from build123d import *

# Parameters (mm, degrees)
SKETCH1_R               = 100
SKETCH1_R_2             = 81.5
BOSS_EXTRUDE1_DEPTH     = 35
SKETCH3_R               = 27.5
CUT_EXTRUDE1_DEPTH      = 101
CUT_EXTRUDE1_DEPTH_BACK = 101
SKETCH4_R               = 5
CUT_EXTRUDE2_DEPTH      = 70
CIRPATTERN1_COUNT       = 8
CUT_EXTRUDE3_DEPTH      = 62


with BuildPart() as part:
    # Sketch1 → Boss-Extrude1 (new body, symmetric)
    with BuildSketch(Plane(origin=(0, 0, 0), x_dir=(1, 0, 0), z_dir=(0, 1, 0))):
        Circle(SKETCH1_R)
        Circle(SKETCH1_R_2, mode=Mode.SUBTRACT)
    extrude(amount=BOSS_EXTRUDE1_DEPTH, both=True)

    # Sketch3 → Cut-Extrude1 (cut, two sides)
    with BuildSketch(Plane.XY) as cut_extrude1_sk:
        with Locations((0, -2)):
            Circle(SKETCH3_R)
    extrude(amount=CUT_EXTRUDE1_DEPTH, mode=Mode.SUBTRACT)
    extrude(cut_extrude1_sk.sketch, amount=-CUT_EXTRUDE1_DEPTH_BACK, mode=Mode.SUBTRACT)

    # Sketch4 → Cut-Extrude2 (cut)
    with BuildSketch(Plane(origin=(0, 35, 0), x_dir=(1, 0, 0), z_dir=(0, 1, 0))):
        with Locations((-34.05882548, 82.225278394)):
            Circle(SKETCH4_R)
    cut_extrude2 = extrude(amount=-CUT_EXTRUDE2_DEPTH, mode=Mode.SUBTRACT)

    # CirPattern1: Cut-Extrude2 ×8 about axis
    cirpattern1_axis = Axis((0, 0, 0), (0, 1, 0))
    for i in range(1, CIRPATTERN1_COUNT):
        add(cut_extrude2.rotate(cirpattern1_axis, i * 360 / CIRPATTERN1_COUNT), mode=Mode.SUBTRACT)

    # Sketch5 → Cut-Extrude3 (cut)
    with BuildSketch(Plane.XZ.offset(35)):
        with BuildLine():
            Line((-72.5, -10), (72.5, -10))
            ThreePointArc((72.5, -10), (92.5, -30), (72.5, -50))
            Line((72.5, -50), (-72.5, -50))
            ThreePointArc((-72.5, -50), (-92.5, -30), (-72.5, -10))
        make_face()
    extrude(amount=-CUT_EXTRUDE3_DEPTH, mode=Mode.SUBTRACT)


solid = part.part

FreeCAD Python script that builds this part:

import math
import FreeCAD as App
import Part
import Sketcher

V = App.Vector
Q = App.Units.Quantity

doc = App.newDocument("Part")
body = doc.addObject("PartDesign::Body", "Body")

sketch1 = body.newObject("Sketcher::SketchObject", "Sketch")
sketch1.AttachmentSupport = (doc.getObject("XZ_Plane"), [""])
sketch1.MapMode = "FlatFace"
sketch1.addGeometry([
    Part.Circle(V(0, 0, 0), V(0, 0, 1), 100),
    Part.Circle(V(0, 0, 0), V(0, 0, 1), 82),
], False)
sketch1.addConstraint([
    Sketcher.Constraint("Coincident", 0, 3, -1, 1),
    Sketcher.Constraint("Coincident", 1, 3, -1, 1),
    Sketcher.Constraint("Diameter", 0, Q("200 mm")),
    Sketcher.Constraint("Diameter", 1, Q("163 mm")),
])
pad1 = body.newObject("PartDesign::Pad", "Pad")
pad1.Profile = sketch1
pad1.Length = 70
pad1.Midplane = True

sketch2 = body.newObject("Sketcher::SketchObject", "Sketch001")
sketch2.AttachmentSupport = (doc.getObject("XY_Plane"), [""])
sketch2.MapMode = "FlatFace"
sketch2.addGeometry(Part.Circle(V(0, -2, 0), V(0, 0, 1), 28), False)
sketch2.addConstraint([
    Sketcher.Constraint("PointOnObject", 0, 3, -2),
    Sketcher.Constraint("Diameter", 0, Q("55 mm")),
    Sketcher.Constraint("DistanceY", 0, 3, -1, 1, Q("2 mm")),
])
pocket1 = body.newObject("PartDesign::Pocket", "Pocket")
pocket1.Profile = sketch2
pocket1.Type = "ThroughAll"
pocket1.Midplane = True

sketch3 = body.newObject("Sketcher::SketchObject", "Sketch002")
sketch3.AttachmentSupport = (doc.getObject("XZ_Plane"), [""])
sketch3.MapMode = "FlatFace"
sketch3.AttachmentOffset = App.Placement(V(0, 0, -35), App.Rotation())
sketch3.addGeometry(Part.Circle(V(-34, -82, 0), V(0, 0, 1), 5), False)
sketch3.addConstraint([
    Sketcher.Constraint("Diameter", 0, Q("10 mm")),
    Sketcher.Constraint("DistanceY", 0, 3, -1, 1, Q("82.225278 mm")),
    Sketcher.Constraint("DistanceX", 0, 3, -1, 1, Q("34.058825 mm")),
])
pocket2 = body.newObject("PartDesign::Pocket", "Pocket001")
pocket2.Profile = sketch3
pocket2.Length = 70
pocket2.Reversed = True
doc.recompute()

polarpattern = body.newObject("PartDesign::PolarPattern", "PolarPattern")
polarpattern.Originals = [pocket2]
polarpattern.Axis = (doc.getObject("Y_Axis"), [""])
polarpattern.Angle = 360
polarpattern.Occurrences = 8
body.Tip = polarpattern

sketch4 = body.newObject("Sketcher::SketchObject", "Sketch003")
sketch4.AttachmentSupport = (doc.getObject("XZ_Plane"), [""])
sketch4.MapMode = "FlatFace"
sketch4.AttachmentOffset = App.Placement(V(0, 0, 35), App.Rotation())
sketch4.addGeometry([
    Part.LineSegment(V(72, -10, 0), V(-72, -10, 0)),
    Part.ArcOfCircle(Part.Circle(V(-72, -30, 0), V(0, 0, 1), 20), math.radians(90), math.radians(270)),
    Part.LineSegment(V(-72, -50, 0), V(72, -50, 0)),
    Part.ArcOfCircle(Part.Circle(V(72, -30, 0), V(0, 0, 1), 20), math.radians(-90), math.radians(90)),
], False)
sketch4.addConstraint([
    Sketcher.Constraint("Tangent", 0, 2, 1, 1),
    Sketcher.Constraint("Tangent", 1, 2, 2, 1),
    Sketcher.Constraint("Tangent", 2, 2, 3, 1),
    Sketcher.Constraint("Tangent", 3, 2, 0, 1),
    Sketcher.Constraint("Horizontal", 0),
    Sketcher.Constraint("Horizontal", 2),
    Sketcher.Constraint("Radius", 1, Q("20 mm")),
    Sketcher.Constraint("DistanceX", 0, 2, 0, 1, Q("145 mm")),
    Sketcher.Constraint("DistanceY", 1, 3, -1, 1, Q("30 mm")),
    Sketcher.Constraint("DistanceX", 1, 3, -1, 1, Q("72.5 mm")),
])
pocket3 = body.newObject("PartDesign::Pocket", "Pocket002")
pocket3.Profile = sketch4
pocket3.Length = 62

doc.recompute()
